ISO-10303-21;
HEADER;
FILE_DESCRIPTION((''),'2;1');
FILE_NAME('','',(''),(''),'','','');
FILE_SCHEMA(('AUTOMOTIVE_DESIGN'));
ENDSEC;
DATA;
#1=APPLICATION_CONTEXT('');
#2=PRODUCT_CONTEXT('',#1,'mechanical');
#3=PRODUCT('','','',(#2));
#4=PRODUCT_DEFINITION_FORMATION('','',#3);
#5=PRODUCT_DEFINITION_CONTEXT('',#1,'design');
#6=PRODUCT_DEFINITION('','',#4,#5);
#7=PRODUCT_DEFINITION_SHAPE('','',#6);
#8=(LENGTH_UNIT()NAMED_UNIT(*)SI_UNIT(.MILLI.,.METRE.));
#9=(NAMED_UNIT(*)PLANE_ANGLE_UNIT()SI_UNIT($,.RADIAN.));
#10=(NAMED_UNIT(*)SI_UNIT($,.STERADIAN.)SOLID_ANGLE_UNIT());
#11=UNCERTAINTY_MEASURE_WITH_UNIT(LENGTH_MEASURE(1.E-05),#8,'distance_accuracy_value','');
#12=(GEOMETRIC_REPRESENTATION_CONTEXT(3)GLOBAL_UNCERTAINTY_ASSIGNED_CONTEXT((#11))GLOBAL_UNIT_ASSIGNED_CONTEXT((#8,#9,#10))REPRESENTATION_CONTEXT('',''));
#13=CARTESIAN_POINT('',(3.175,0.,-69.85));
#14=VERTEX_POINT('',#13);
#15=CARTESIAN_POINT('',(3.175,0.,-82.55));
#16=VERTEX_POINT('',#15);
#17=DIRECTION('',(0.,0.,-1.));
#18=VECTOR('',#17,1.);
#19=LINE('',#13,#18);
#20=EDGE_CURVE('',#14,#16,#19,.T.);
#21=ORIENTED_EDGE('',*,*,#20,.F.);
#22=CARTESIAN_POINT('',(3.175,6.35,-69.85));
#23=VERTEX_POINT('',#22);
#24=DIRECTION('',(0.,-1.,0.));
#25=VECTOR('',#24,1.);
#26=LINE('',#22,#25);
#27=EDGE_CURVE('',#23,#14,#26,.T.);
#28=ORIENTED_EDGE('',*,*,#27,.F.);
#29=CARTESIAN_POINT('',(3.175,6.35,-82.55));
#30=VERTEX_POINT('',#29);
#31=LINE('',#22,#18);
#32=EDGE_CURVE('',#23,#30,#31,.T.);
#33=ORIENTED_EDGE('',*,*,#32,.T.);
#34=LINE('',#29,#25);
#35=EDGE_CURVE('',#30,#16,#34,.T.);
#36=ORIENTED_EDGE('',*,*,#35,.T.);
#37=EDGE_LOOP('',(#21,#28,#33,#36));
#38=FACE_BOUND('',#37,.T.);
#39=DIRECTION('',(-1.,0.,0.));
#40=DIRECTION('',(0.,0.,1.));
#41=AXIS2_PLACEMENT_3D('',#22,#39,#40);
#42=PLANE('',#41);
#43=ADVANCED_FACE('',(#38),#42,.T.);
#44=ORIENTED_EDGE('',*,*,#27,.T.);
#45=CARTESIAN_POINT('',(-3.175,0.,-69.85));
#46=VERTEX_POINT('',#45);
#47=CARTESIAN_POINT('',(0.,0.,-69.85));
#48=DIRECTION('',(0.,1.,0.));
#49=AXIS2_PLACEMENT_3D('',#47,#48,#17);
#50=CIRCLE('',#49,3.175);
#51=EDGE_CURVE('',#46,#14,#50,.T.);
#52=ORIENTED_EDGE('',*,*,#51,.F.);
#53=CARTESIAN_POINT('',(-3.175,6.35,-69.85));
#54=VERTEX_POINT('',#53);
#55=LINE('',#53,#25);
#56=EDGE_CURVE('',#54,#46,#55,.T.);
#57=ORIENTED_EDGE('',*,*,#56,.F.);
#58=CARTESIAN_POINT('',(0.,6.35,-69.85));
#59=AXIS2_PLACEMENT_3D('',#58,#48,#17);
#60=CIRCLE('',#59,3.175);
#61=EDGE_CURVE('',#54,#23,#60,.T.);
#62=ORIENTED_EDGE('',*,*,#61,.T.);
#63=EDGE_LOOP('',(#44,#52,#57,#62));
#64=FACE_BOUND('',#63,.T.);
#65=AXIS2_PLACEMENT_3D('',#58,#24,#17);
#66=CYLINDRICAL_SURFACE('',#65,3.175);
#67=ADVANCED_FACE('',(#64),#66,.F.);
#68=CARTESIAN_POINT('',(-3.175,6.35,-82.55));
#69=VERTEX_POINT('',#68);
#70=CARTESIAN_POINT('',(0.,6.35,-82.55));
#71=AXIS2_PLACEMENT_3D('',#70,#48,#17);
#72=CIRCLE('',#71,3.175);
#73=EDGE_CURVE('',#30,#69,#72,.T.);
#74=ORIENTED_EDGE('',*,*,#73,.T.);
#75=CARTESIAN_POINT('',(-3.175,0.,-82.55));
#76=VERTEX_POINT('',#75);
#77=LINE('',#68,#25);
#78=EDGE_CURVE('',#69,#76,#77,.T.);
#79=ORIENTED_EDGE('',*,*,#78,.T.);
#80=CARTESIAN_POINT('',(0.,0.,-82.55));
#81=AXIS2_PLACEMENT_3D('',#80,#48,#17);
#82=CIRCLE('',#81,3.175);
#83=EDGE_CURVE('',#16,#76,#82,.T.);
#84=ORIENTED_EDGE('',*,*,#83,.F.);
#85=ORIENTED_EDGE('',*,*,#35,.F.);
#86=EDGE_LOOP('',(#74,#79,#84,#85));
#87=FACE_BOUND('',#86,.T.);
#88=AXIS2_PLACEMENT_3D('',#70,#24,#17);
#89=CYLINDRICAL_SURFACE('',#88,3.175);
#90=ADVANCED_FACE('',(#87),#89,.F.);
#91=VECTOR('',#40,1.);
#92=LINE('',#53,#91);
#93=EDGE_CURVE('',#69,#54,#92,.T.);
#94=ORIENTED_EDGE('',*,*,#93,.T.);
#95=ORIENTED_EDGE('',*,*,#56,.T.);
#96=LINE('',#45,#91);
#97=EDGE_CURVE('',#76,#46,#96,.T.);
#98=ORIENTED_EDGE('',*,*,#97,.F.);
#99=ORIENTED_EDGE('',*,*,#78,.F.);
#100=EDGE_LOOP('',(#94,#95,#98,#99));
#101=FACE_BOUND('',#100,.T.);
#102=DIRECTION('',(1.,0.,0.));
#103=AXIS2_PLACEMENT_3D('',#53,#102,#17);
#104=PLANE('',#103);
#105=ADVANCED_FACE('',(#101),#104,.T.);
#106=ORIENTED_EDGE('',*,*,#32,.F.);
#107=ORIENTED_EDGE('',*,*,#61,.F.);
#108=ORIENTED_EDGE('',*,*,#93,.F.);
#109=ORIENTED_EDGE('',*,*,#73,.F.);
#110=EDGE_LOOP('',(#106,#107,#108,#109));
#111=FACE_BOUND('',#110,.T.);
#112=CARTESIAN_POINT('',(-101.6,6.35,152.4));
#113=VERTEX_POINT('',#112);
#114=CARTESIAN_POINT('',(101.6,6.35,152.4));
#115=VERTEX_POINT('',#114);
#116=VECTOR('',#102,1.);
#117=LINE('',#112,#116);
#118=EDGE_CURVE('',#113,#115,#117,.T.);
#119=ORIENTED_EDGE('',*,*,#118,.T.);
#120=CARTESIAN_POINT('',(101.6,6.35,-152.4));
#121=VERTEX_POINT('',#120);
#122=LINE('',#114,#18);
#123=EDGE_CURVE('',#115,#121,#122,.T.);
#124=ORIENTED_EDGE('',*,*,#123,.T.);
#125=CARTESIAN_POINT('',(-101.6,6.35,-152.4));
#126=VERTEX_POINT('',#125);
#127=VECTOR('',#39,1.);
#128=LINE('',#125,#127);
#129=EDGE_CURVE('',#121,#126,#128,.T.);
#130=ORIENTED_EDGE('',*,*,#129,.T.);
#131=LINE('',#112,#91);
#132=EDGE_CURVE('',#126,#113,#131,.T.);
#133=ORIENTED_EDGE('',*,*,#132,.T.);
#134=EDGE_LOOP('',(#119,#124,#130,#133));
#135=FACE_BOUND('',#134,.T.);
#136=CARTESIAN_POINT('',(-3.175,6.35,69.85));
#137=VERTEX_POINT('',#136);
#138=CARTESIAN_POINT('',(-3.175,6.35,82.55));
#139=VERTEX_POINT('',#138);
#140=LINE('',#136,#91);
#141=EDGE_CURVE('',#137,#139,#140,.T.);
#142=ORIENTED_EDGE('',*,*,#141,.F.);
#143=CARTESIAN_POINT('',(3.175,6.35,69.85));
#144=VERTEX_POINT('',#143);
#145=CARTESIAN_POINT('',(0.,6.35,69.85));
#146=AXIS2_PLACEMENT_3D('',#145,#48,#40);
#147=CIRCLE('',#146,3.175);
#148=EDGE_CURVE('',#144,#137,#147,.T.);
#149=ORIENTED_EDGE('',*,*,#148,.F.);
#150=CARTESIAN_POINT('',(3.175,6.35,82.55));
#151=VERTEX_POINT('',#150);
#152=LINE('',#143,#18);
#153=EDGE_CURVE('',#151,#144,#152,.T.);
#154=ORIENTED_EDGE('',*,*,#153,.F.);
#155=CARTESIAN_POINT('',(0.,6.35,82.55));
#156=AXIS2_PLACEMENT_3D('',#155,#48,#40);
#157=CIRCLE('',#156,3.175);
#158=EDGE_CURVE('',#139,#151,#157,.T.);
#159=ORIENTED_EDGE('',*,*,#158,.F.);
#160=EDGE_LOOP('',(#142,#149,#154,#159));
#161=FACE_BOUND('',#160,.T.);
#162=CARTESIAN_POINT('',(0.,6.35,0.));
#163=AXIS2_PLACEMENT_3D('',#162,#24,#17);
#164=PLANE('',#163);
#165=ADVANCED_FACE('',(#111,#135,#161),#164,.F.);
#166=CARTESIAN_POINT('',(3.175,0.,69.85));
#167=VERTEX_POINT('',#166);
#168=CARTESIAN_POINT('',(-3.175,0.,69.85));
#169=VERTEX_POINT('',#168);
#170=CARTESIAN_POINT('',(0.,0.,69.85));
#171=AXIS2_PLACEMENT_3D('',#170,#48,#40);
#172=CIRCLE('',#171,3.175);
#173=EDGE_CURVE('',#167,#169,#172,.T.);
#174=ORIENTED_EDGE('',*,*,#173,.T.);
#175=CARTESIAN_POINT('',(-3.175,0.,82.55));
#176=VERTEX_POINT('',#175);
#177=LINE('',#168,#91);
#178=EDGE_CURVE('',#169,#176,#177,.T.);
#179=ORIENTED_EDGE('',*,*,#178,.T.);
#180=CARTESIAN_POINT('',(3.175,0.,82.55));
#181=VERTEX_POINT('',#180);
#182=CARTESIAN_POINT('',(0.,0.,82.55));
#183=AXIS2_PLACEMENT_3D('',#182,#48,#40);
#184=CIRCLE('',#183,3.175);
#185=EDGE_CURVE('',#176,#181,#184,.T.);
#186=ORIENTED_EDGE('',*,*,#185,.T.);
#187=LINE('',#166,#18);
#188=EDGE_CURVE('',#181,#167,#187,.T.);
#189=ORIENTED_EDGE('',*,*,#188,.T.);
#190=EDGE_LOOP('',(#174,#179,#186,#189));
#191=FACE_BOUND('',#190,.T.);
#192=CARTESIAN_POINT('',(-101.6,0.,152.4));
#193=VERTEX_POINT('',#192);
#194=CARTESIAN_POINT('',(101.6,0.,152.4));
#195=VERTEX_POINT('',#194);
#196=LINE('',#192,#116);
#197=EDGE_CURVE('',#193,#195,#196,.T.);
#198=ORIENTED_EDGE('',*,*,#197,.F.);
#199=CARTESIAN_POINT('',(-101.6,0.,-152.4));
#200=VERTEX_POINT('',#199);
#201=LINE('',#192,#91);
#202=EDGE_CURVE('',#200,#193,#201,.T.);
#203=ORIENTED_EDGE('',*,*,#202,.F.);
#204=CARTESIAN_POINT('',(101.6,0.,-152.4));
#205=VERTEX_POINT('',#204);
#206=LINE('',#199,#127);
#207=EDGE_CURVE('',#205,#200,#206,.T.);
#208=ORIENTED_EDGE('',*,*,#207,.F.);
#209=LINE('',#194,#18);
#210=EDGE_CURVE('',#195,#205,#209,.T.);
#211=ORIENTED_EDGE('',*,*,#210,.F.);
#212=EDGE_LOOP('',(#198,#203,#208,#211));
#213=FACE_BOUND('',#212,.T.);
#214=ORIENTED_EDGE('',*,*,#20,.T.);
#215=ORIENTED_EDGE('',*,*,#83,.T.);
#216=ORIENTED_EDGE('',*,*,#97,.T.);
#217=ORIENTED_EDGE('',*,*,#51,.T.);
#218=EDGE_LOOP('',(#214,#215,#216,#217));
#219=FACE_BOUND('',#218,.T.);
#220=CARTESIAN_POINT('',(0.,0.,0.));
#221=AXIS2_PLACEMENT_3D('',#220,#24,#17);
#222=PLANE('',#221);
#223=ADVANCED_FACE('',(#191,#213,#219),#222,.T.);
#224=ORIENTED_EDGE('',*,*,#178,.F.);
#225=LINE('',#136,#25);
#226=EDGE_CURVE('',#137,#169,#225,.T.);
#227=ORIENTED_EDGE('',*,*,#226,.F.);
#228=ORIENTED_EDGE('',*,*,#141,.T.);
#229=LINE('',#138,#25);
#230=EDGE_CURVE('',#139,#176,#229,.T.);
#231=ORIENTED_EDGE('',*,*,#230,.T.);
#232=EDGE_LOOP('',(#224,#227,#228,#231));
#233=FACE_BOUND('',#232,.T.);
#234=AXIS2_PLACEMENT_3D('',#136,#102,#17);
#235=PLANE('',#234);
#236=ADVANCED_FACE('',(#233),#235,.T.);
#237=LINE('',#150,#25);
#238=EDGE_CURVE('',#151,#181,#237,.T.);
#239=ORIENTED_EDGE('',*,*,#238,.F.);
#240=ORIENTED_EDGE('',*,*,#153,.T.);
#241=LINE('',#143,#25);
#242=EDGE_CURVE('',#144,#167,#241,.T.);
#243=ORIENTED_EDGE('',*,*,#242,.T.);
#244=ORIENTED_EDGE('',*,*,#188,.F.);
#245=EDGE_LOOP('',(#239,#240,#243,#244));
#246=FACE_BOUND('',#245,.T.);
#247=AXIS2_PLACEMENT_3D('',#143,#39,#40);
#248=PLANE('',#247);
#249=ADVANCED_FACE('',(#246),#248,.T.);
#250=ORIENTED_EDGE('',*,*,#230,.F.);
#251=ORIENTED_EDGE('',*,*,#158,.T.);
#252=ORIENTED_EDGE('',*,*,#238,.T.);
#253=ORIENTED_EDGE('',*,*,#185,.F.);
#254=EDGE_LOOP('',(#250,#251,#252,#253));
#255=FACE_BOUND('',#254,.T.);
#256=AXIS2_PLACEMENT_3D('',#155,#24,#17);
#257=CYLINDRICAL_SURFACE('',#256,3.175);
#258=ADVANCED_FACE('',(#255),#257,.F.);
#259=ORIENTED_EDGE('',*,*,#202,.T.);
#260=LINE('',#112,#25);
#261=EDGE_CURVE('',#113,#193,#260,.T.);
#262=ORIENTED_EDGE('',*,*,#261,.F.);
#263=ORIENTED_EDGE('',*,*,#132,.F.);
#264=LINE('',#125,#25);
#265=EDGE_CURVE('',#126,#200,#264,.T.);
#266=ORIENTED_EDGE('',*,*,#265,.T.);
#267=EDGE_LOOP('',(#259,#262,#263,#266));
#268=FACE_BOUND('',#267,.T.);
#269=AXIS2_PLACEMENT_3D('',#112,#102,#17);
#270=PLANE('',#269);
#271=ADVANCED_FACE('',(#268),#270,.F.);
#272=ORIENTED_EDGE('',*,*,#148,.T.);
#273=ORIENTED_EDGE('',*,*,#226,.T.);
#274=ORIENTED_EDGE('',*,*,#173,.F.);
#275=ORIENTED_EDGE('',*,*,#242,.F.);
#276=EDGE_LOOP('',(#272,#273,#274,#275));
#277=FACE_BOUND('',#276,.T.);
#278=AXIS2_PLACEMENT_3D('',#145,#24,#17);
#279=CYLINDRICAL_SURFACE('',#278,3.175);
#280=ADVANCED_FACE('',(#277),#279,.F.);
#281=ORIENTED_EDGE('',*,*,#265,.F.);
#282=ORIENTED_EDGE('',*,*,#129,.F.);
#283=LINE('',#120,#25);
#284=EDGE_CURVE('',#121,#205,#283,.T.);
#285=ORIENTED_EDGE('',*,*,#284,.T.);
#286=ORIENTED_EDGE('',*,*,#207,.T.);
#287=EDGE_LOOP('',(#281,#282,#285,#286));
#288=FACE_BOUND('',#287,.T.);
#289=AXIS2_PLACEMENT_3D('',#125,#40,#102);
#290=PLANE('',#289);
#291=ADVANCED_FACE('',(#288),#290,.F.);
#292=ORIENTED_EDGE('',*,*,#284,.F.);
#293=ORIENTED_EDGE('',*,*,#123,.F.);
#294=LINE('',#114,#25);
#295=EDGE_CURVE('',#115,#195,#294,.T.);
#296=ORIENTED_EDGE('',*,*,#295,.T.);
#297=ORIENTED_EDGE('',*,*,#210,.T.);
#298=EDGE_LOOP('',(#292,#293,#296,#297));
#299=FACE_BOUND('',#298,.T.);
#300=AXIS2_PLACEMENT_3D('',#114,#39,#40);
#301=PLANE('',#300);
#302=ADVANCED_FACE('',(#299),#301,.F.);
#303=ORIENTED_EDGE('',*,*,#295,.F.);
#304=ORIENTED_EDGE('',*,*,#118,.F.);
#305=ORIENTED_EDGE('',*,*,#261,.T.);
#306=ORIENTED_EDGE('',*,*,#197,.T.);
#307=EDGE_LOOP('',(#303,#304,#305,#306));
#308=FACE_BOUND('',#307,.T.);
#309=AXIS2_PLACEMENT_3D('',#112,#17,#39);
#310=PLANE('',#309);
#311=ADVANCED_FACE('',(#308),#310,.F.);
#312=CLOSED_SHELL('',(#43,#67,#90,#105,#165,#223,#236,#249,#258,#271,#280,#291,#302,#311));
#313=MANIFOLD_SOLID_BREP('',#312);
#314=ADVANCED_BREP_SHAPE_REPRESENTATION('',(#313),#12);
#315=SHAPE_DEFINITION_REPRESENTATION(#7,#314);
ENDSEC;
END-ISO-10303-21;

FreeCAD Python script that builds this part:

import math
import FreeCAD as App
import Part
import Sketcher

V = App.Vector
Q = App.Units.Quantity

doc = App.newDocument("Part")
params = doc.addObject("Spreadsheet::Sheet", "Params")
for row, (alias, value) in enumerate([
    ("sketch1_width", "8 in"),
    ("sketch1_height", "12 in"),
    ("sketch1_height2", "0.5 in"),
    ("sketch1_radius", "0.125 in"),
    ("pad1_length", "0.25 in"),
], start=1):
    params.set(f"A{row}", alias)
    params.set(f"B{row}", "=" + value)
    params.setAlias(f"B{row}", alias)

body = doc.addObject("PartDesign::Body", "Body")

# Sketch on XZ plane
sketch1 = body.newObject("Sketcher::SketchObject", "Sketch")
sketch1.AttachmentSupport = (doc.getObject("XZ_Plane"), [""])
sketch1.MapMode = "FlatFace"
sketch1.addGeometry(Part.LineSegment(V(-101.6, -152.4, 0), V(-101.6, 152.4, 0)), False)
sketch1.addGeometry(Part.LineSegment(V(-101.6, 152.4, 0), V(101.6, 152.4, 0)), False)
sketch1.addGeometry(Part.LineSegment(V(101.6, 152.4, 0), V(101.6, -152.4, 0)), False)
sketch1.addGeometry(Part.LineSegment(V(101.6, -152.4, 0), V(-101.6, -152.4, 0)), False)
sketch1.addGeometry(Part.ArcOfCircle(Part.Circle(V(0, 69.8, 0), V(0, 0, 1), 3.2), math.radians(180), math.radians(360)), False)
sketch1.addGeometry(Part.LineSegment(V(3.2, 69.8, 0), V(3.2, 82.5, 0)), False)
sketch1.addGeometry(Part.ArcOfCircle(Part.Circle(V(0, 82.5, 0), V(0, 0, 1), 3.2), math.radians(0), math.radians(180)), False)
sketch1.addGeometry(Part.LineSegment(V(-3.2, 82.5, 0), V(-3.2, 69.8, 0)), False)
sketch1.addGeometry(Part.LineSegment(V(3.2, -82.5, 0), V(3.2, -69.8, 0)), False)
sketch1.addGeometry(Part.ArcOfCircle(Part.Circle(V(0, -69.8, 0), V(0, 0, 1), 3.2), math.radians(0), math.radians(180)), False)
sketch1.addGeometry(Part.LineSegment(V(-3.2, -69.8, 0), V(-3.2, -82.5, 0)), False)
sketch1.addGeometry(Part.ArcOfCircle(Part.Circle(V(0, -82.5, 0), V(0, 0, 1), 3.2), math.radians(180), math.radians(360)), False)
sketch1.addConstraint(Sketcher.Constraint("Coincident", 0, 2, 1, 1))
sketch1.addConstraint(Sketcher.Constraint("Coincident", 1, 2, 2, 1))
sketch1.addConstraint(Sketcher.Constraint("Coincident", 2, 2, 3, 1))
sketch1.addConstraint(Sketcher.Constraint("Coincident", 3, 2, 0, 1))
sketch1.addConstraint(Sketcher.Constraint("Tangent", 4, 2, 5, 1))
sketch1.addConstraint(Sketcher.Constraint("Tangent", 5, 2, 6, 1))
sketch1.addConstraint(Sketcher.Constraint("Tangent", 6, 2, 7, 1))
sketch1.addConstraint(Sketcher.Constraint("Tangent", 7, 2, 4, 1))
sketch1.addConstraint(Sketcher.Constraint("Tangent", 8, 2, 9, 1))
sketch1.addConstraint(Sketcher.Constraint("Tangent", 9, 2, 10, 1))
sketch1.addConstraint(Sketcher.Constraint("Tangent", 10, 2, 11, 1))
sketch1.addConstraint(Sketcher.Constraint("Tangent", 11, 2, 8, 1))
sketch1.addConstraint(Sketcher.Constraint("Vertical", 0))
sketch1.addConstraint(Sketcher.Constraint("Horizontal", 1))
sketch1.addConstraint(Sketcher.Constraint("Vertical", 2))
sketch1.addConstraint(Sketcher.Constraint("Horizontal", 3))
sketch1.addConstraint(Sketcher.Constraint("Vertical", 5))
sketch1.addConstraint(Sketcher.Constraint("Vertical", 7))
sketch1.addConstraint(Sketcher.Constraint("Vertical", 8))
sketch1.addConstraint(Sketcher.Constraint("Vertical", 10))
sketch1.addConstraint(Sketcher.Constraint("Equal", 6, 9))
sketch1.addConstraint(Sketcher.Constraint("Symmetric", 4, 3, 9, 3, -1, 1))
sketch1.addConstraint(Sketcher.Constraint("Symmetric", 0, 2, 2, 2, -1, 1))
sketch1.addConstraint(Sketcher.Constraint("Symmetric", 6, 3, 11, 3, -1))
sketch1.addConstraint(Sketcher.Constraint("DistanceX", 1, 1, 1, 2, Q("8 in")))
sketch1.addConstraint(Sketcher.Constraint("DistanceY", 0, 1, 0, 2, Q("12 in")))
sketch1.addConstraint(Sketcher.Constraint("DistanceY", 5, 1, 5, 2, Q("0.5 in")))
sketch1.addConstraint(Sketcher.Constraint("Radius", 4, Q("0.125 in")))
sketch1.addConstraint(Sketcher.Constraint("DistanceY", 9, 3, 6, 3, Q("6 in")))
sketch1.setExpression("Constraints[24]", "Params.sketch1_width")
sketch1.setExpression("Constraints[25]", "Params.sketch1_height")
sketch1.setExpression("Constraints[26]", "Params.sketch1_height2")
sketch1.setExpression("Constraints[27]", "Params.sketch1_radius")
pad1 = body.newObject("PartDesign::Pad", "Pad")
pad1.Profile = sketch1
pad1.setExpression("Length", "Params.pad1_length")
pad1.Reversed = True

doc.recompute()
